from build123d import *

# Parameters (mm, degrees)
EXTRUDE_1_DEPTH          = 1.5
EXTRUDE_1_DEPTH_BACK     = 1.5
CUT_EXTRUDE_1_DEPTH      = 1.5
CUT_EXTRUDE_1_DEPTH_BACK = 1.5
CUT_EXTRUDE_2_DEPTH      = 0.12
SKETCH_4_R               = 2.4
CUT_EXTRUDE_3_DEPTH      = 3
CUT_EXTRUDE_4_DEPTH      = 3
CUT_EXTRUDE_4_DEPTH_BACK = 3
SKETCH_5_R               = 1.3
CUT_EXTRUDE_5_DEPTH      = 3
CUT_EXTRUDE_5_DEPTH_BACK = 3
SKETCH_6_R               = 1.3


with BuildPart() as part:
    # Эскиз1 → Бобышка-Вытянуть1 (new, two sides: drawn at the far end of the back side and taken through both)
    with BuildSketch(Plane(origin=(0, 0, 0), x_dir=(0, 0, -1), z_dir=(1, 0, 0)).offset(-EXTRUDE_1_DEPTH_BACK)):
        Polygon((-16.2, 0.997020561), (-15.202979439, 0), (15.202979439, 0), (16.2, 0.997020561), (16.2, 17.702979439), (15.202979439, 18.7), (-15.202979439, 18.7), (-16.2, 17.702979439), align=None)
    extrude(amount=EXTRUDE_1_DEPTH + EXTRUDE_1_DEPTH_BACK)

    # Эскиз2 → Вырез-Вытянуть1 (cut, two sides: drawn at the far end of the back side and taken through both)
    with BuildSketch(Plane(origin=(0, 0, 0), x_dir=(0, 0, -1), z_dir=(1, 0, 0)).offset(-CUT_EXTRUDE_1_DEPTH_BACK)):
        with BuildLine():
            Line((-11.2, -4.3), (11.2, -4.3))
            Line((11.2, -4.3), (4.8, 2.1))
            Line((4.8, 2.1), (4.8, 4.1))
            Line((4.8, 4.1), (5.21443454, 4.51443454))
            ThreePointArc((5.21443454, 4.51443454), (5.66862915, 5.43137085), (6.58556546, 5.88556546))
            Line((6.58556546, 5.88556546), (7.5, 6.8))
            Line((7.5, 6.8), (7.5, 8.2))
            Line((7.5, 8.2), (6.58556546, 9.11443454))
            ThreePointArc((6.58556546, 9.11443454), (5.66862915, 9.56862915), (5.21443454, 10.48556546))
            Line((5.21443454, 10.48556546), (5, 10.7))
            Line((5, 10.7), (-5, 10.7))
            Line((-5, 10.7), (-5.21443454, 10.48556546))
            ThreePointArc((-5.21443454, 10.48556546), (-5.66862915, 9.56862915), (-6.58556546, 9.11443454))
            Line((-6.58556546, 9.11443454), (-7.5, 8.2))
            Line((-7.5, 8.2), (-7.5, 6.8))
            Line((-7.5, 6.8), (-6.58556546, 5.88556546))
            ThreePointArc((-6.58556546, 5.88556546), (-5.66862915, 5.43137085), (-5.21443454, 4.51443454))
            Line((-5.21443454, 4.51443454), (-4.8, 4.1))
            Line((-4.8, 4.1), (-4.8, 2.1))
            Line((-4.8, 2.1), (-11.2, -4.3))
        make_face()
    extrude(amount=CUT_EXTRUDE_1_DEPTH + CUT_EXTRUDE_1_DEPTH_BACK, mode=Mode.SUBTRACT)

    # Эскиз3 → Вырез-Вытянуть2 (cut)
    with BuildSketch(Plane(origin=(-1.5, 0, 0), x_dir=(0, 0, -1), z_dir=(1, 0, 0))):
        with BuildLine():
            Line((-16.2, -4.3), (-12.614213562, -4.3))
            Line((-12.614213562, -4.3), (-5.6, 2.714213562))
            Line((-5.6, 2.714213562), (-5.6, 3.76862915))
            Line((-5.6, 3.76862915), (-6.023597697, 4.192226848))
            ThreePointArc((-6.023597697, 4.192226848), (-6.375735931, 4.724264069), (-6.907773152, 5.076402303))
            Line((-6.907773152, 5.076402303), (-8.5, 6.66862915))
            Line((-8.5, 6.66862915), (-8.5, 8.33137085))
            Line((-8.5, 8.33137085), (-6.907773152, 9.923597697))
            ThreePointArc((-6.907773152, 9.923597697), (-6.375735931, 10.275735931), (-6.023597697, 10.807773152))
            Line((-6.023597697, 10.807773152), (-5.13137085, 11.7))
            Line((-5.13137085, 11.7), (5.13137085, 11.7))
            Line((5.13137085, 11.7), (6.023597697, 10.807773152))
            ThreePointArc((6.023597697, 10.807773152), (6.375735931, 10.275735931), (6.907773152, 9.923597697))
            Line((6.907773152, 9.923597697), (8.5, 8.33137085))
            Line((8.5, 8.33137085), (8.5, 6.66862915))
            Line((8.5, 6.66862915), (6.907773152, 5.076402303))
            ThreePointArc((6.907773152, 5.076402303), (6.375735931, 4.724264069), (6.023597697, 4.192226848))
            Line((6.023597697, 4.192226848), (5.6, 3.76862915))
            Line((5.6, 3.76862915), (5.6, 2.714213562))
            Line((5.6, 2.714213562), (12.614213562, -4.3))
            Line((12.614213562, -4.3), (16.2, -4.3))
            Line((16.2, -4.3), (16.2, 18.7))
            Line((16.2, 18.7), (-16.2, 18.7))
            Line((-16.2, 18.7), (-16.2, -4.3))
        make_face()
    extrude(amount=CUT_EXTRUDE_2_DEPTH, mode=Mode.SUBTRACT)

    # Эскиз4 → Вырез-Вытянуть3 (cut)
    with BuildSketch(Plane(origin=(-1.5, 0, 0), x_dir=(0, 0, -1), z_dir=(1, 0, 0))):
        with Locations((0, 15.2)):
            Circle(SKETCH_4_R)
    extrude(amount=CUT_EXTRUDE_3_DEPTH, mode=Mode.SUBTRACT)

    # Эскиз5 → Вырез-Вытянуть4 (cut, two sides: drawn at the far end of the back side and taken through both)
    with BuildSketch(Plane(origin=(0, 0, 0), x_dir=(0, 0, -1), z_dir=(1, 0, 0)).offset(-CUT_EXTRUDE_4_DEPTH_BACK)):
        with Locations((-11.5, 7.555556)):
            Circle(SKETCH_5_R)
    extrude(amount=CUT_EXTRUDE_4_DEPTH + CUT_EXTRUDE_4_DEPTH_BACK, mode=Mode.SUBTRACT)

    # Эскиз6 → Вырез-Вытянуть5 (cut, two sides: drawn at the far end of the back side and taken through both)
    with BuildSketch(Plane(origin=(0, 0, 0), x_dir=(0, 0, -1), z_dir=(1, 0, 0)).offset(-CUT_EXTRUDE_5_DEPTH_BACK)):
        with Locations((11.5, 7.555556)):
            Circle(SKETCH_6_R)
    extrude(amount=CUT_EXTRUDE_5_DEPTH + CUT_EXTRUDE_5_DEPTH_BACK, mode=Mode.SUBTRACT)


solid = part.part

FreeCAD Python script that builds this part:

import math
import FreeCAD as App
import Part
import Sketcher


def add_polygon(sketch, points):
    """Adds a closed chain of lines whose ends are joined by coincident constraints."""
    first, n = sketch.GeometryCount, len(points)
    for a, b in zip(points, points[1:] + points[:1]):
        sketch.addGeometry(Part.LineSegment(App.Vector(*a, 0), App.Vector(*b, 0)), False)
    for i in range(n):
        sketch.addConstraint(Sketcher.Constraint("Coincident", first + i, 2, first + (i + 1) % n, 1))

doc = App.newDocument("Part")
body = doc.addObject("PartDesign::Body", "Body")

# Sketch on YZ plane
sketch1 = doc.addObject("Sketcher::SketchObject", "Sketch")
body.addObject(sketch1)
sketch1.AttachmentSupport = (doc.YZ_Plane, [""])
sketch1.MapMode = "FlatFace"
add_polygon(sketch1, [(1, 16.2), (0, 15.2), (0, -15.2), (1, -16.2), (17.7, -16.2), (18.7, -15.2), (18.7, 15.2), (17.7, 16.2)])  # lines 0-7
sketch1.addConstraint(Sketcher.Constraint("Vertical", 1))
sketch1.addConstraint(Sketcher.Constraint("Horizontal", 3))
sketch1.addConstraint(Sketcher.Constraint("Vertical", 5))
sketch1.addConstraint(Sketcher.Constraint("Horizontal", 7))
sketch1.addConstraint(Sketcher.Constraint("Symmetric", 0, 2, 1, 2, -1, 1))
sketch1.addConstraint(Sketcher.Constraint("Symmetric", 3, 2, 6, 2, -1))
sketch1.addConstraint(Sketcher.Constraint("Perpendicular", 0, 2))
sketch1.addConstraint(Sketcher.Constraint("Perpendicular", 2, 4))
sketch1.addConstraint(Sketcher.Constraint("Perpendicular", 4, 6))
sketch1.addConstraint(Sketcher.Constraint("Horizontal", 1, 2, 4, 2))
sketch1.addConstraint(Sketcher.Constraint("Horizontal", 0, 2, 5, 2))
sketch1.addConstraint(Sketcher.Constraint("DistanceY", 2, 2, -1, 1, 16.2))
sketch1.addConstraint(Sketcher.Constraint("DistanceX", -1, 1, 4, 2, 18.7))
sketch1.addConstraint(Sketcher.Constraint("Distance", 0, 1.41))
pad1 = doc.addObject("PartDesign::Pad", "Pad")
body.addObject(pad1)
pad1.Profile = sketch1
pad1.Type = "TwoLengths"
pad1.Length = 1.5
pad1.Length2 = 1.5

# Sketch on YZ plane
sketch2 = doc.addObject("Sketcher::SketchObject", "Sketch001")
body.addObject(sketch2)
sketch2.AttachmentSupport = (doc.YZ_Plane, [""])
sketch2.MapMode = "FlatFace"
sketch2.addGeometry(Part.LineSegment(App.Vector(-4.3, 11.2, 0), App.Vector(-4.3, -11.2, 0)), False)
sketch2.addGeometry(Part.LineSegment(App.Vector(-4.3, -11.2, 0), App.Vector(2.1, -4.8, 0)), False)
sketch2.addGeometry(Part.LineSegment(App.Vector(2.1, -4.8, 0), App.Vector(4.1, -4.8, 0)), False)
sketch2.addGeometry(Part.LineSegment(App.Vector(4.1, -4.8, 0), App.Vector(4.51, -5.21, 0)), False)
sketch2.addGeometry(Part.ArcOfCircle(Part.Circle(App.Vector(4.3, -6.8, 0), App.Vector(0, 0, 1), 1.6), math.radians(8), math.radians(82)), False)
sketch2.addGeometry(Part.LineSegment(App.Vector(5.89, -6.59, 0), App.Vector(6.8, -7.5, 0)), False)
sketch2.addGeometry(Part.LineSegment(App.Vector(6.8, -7.5, 0), App.Vector(8.2, -7.5, 0)), False)
sketch2.addGeometry(Part.LineSegment(App.Vector(8.2, -7.5, 0), App.Vector(9.11, -6.59, 0)), False)
sketch2.addGeometry(Part.ArcOfCircle(Part.Circle(App.Vector(10.7, -6.8, 0), App.Vector(0, 0, 1), 1.6), math.radians(98), math.radians(172)), False)
sketch2.addGeometry(Part.LineSegment(App.Vector(10.49, -5.21, 0), App.Vector(10.7, -5, 0)), False)
sketch2.addGeometry(Part.LineSegment(App.Vector(10.7, -5, 0), App.Vector(10.7, 5, 0)), False)
sketch2.addGeometry(Part.LineSegment(App.Vector(10.7, 5, 0), App.Vector(10.49, 5.21, 0)), False)
sketch2.addGeometry(Part.ArcOfCircle(Part.Circle(App.Vector(10.7, 6.8, 0), App.Vector(0, 0, 1), 1.6), math.radians(-172), math.radians(-98)), False)
sketch2.addGeometry(Part.LineSegment(App.Vector(9.11, 6.59, 0), App.Vector(8.2, 7.5, 0)), False)
sketch2.addGeometry(Part.LineSegment(App.Vector(8.2, 7.5, 0), App.Vector(6.8, 7.5, 0)), False)
sketch2.addGeometry(Part.LineSegment(App.Vector(6.8, 7.5, 0), App.Vector(5.89, 6.59, 0)), False)
sketch2.addGeometry(Part.ArcOfCircle(Part.Circle(App.Vector(4.3, 6.8, 0), App.Vector(0, 0, 1), 1.6), math.radians(-82), math.radians(-8)), False)
sketch2.addGeometry(Part.LineSegment(App.Vector(4.51, 5.21, 0), App.Vector(4.1, 4.8, 0)), False)
sketch2.addGeometry(Part.LineSegment(App.Vector(4.1, 4.8, 0), App.Vector(2.1, 4.8, 0)), False)
sketch2.addGeometry(Part.LineSegment(App.Vector(2.1, 4.8, 0), App.Vector(-4.3, 11.2, 0)), False)
sketch2.addConstraint(Sketcher.Constraint("Coincident", 0, 2, 1, 1))
sketch2.addConstraint(Sketcher.Constraint("Coincident", 1, 2, 2, 1))
sketch2.addConstraint(Sketcher.Constraint("Coincident", 2, 2, 3, 1))
sketch2.addConstraint(Sketcher.Constraint("Coincident", 3, 2, 4, 2))
sketch2.addConstraint(Sketcher.Constraint("Coincident", 4, 1, 5, 1))
sketch2.addConstraint(Sketcher.Constraint("Coincident", 5, 2, 6, 1))
sketch2.addConstraint(Sketcher.Constraint("Coincident", 6, 2, 7, 1))
sketch2.addConstraint(Sketcher.Constraint("Coincident", 7, 2, 8, 2))
sketch2.addConstraint(Sketcher.Constraint("Coincident", 8, 1, 9, 1))
sketch2.addConstraint(Sketcher.Constraint("Coincident", 9, 2, 10, 1))
sketch2.addConstraint(Sketcher.Constraint("Coincident", 10, 2, 11, 1))
sketch2.addConstraint(Sketcher.Constraint("Coincident", 11, 2, 12, 2))
sketch2.addConstraint(Sketcher.Constraint("Coincident", 12, 1, 13, 1))
sketch2.addConstraint(Sketcher.Constraint("Coincident", 13, 2, 14, 1))
sketch2.addConstraint(Sketcher.Constraint("Coincident", 14, 2, 15, 1))
sketch2.addConstraint(Sketcher.Constraint("Coincident", 15, 2, 16, 2))
sketch2.addConstraint(Sketcher.Constraint("Coincident", 16, 1, 17, 1))
sketch2.addConstraint(Sketcher.Constraint("Coincident", 17, 2, 18, 1))
sketch2.addConstraint(Sketcher.Constraint("Coincident", 18, 2, 19, 1))
sketch2.addConstraint(Sketcher.Constraint("Coincident", 19, 2, 0, 1))
sketch2.addConstraint(Sketcher.Constraint("Vertical", 0))
sketch2.addConstraint(Sketcher.Constraint("Horizontal", 2))
sketch2.addConstraint(Sketcher.Constraint("Horizontal", 6))
sketch2.addConstraint(Sketcher.Constraint("Vertical", 10))
sketch2.addConstraint(Sketcher.Constraint("Horizontal", 14))
sketch2.addConstraint(Sketcher.Constraint("Horizontal", 18))
sketch2.addConstraint(Sketcher.Constraint("Equal", 4, 8))
sketch2.addConstraint(Sketcher.Constraint("Equal", 8, 12))
sketch2.addConstraint(Sketcher.Constraint("Equal", 12, 16))
sketch2.addConstraint(Sketcher.Constraint("Symmetric", 8, 3, 12, 3, -1))
sketch2.addConstraint(Sketcher.Constraint("Symmetric", 4, 3, 16, 3, -1))
sketch2.addConstraint(Sketcher.Constraint("Symmetric", 6, 2, 13, 2, -1))
sketch2.addConstraint(Sketcher.Constraint("Symmetric", 2, 2, 17, 2, -1))
sketch2.addConstraint(Sketcher.Constraint("Perpendicular", 1, 3))
sketch2.addConstraint(Sketcher.Constraint("Parallel", 3, 5))
sketch2.addConstraint(Sketcher.Constraint("Perpendicular", 5, 7))
sketch2.addConstraint(Sketcher.Constraint("Parallel", 7, 9))
sketch2.addConstraint(Sketcher.Constraint("Perpendicular", 9, 11))
sketch2.addConstraint(Sketcher.Constraint("Parallel", 11, 13))
sketch2.addConstraint(Sketcher.Constraint("Perpendicular", 13, 15))
sketch2.addConstraint(Sketcher.Constraint("Parallel", 15, 17))
sketch2.addConstraint(Sketcher.Constraint("Perpendicular", 17, 19))
sketch2.addConstraint(Sketcher.Constraint("Horizontal", 4, 3, 8, 3))
sketch2.addConstraint(Sketcher.Constraint("Horizontal", 4, 1, 7, 2))
sketch2.addConstraint(Sketcher.Constraint("Horizontal", 3, 2, 8, 1))
sketch2.addConstraint(Sketcher.Constraint("Horizontal", 12, 1, 15, 2))
sketch2.addConstraint(Sketcher.Constraint("Horizontal", 11, 2, 16, 1))
sketch2.addConstraint(Sketcher.Constraint("Vertical", 12, 3, 9, 2))
sketch2.addConstraint(Sketcher.Constraint("Vertical", 8, 1, 11, 2))
sketch2.addConstraint(Sketcher.Constraint("Vertical", 1, 2, 18, 2))
sketch2.addConstraint(Sketcher.Constraint("Radius", 4, 1.6))
sketch2.addConstraint(Sketcher.Constraint("DistanceX", 2, 1, 2, 2, 2.0))
sketch2.addConstraint(Sketcher.Constraint("DistanceY", 10, 1, 10, 2, 10.0))
sketch2.addConstraint(Sketcher.Constraint("DistanceX", 6, 1, 6, 2, 1.4))
sketch2.addConstraint(Sketcher.Constraint("DistanceY", 0, 2, 0, 1, 22.4))
sketch2.addConstraint(Sketcher.Constraint("DistanceX", 0, 2, 8, 3, 15.0))
sketch2.addConstraint(Sketcher.Constraint("DistanceY", 0, 2, 16, 3, 18.0))
sketch2.addConstraint(Sketcher.Constraint("DistanceY", 4, 3, 1, 2, 2.0))
sketch2.addConstraint(Sketcher.Constraint("DistanceX", -1, 1, 4, 3, 4.3))
sketch2.addConstraint(Sketcher.Constraint("DistanceY", 5, 2, -1, 1, 7.5))
pocket1 = doc.addObject("PartDesign::Pocket", "Pocket")
body.addObject(pocket1)
pocket1.Profile = sketch2
pocket1.Type = "ThroughAll"
pocket1.Midplane = True

# Sketch on YZ plane
sketch3 = doc.addObject("Sketcher::SketchObject", "Sketch002")
body.addObject(sketch3)
sketch3.AttachmentSupport = (doc.YZ_Plane, [""])
sketch3.MapMode = "FlatFace"
sketch3.AttachmentOffset = App.Placement(App.Vector(0, 0, -1.5), App.Rotation())
sketch3.addGeometry(Part.LineSegment(App.Vector(-4.3, 16.2, 0), App.Vector(-4.3, 12.6, 0)), False)
sketch3.addGeometry(Part.LineSegment(App.Vector(-4.3, 12.6, 0), App.Vector(2.7, 5.6, 0)), False)
sketch3.addGeometry(Part.LineSegment(App.Vector(2.7, 5.6, 0), App.Vector(3.8, 5.6, 0)), False)
sketch3.addGeometry(Part.LineSegment(App.Vector(3.8, 5.6, 0), App.Vector(4.2, 6, 0)), False)
sketch3.addGeometry(Part.ArcOfCircle(Part.Circle(App.Vector(3.6, 7.5, 0), App.Vector(0, 0, 1), 1.6), math.radians(-68), math.radians(-22)), False)
sketch3.addGeometry(Part.LineSegment(App.Vector(5.1, 6.9, 0), App.Vector(6.7, 8.5, 0)), False)
sketch3.addGeometry(Part.LineSegment(App.Vector(6.7, 8.5, 0), App.Vector(8.3, 8.5, 0)), False)
sketch3.addGeometry(Part.LineSegment(App.Vector(8.3, 8.5, 0), App.Vector(9.9, 6.9, 0)), False)
sketch3.addGeometry(Part.ArcOfCircle(Part.Circle(App.Vector(11.4, 7.5, 0), App.Vector(0, 0, 1), 1.6), math.radians(-158), math.radians(-112)), False)
sketch3.addGeometry(Part.LineSegment(App.Vector(10.8, 6, 0), App.Vector(11.7, 5.1, 0)), False)
sketch3.addGeometry(Part.LineSegment(App.Vector(11.7, 5.1, 0), App.Vector(11.7, -5.1, 0)), False)
sketch3.addGeometry(Part.LineSegment(App.Vector(11.7, -5.1, 0), App.Vector(10.8, -6, 0)), False)
sketch3.addGeometry(Part.ArcOfCircle(Part.Circle(App.Vector(11.4, -7.5, 0), App.Vector(0, 0, 1), 1.6), math.radians(112), math.radians(158)), False)
sketch3.addGeometry(Part.LineSegment(App.Vector(9.9, -6.9, 0), App.Vector(8.3, -8.5, 0)), False)
sketch3.addGeometry(Part.LineSegment(App.Vector(8.3, -8.5, 0), App.Vector(6.7, -8.5, 0)), False)
sketch3.addGeometry(Part.LineSegment(App.Vector(6.7, -8.5, 0), App.Vector(5.1, -6.9, 0)), False)
sketch3.addGeometry(Part.ArcOfCircle(Part.Circle(App.Vector(3.6, -7.5, 0), App.Vector(0, 0, 1), 1.6), math.radians(22), math.radians(68)), False)
sketch3.addGeometry(Part.LineSegment(App.Vector(4.2, -6, 0), App.Vector(3.8, -5.6, 0)), False)
sketch3.addGeometry(Part.LineSegment(App.Vector(3.8, -5.6, 0), App.Vector(2.7, -5.6, 0)), False)
sketch3.addGeometry(Part.LineSegment(App.Vector(2.7, -5.6, 0), App.Vector(-4.3, -12.6, 0)), False)
sketch3.addGeometry(Part.LineSegment(App.Vector(-4.3, -12.6, 0), App.Vector(-4.3, -16.2, 0)), False)
sketch3.addGeometry(Part.LineSegment(App.Vector(-4.3, -16.2, 0), App.Vector(18.7, -16.2, 0)), False)
sketch3.addGeometry(Part.LineSegment(App.Vector(18.7, -16.2, 0), App.Vector(18.7, 16.2, 0)), False)
sketch3.addGeometry(Part.LineSegment(App.Vector(18.7, 16.2, 0), App.Vector(-4.3, 16.2, 0)), False)
sketch3.addConstraint(Sketcher.Constraint("Coincident", 0, 2, 1, 1))
sketch3.addConstraint(Sketcher.Constraint("Coincident", 1, 2, 2, 1))
sketch3.addConstraint(Sketcher.Constraint("Coincident", 2, 2, 3, 1))
sketch3.addConstraint(Sketcher.Constraint("Coincident", 3, 2, 4, 1))
sketch3.addConstraint(Sketcher.Constraint("Coincident", 4, 2, 5, 1))
sketch3.addConstraint(Sketcher.Constraint("Coincident", 5, 2, 6, 1))
sketch3.addConstraint(Sketcher.Constraint("Coincident", 6, 2, 7, 1))
sketch3.addConstraint(Sketcher.Constraint("Coincident", 7, 2, 8, 1))
sketch3.addConstraint(Sketcher.Constraint("Coincident", 8, 2, 9, 1))
sketch3.addConstraint(Sketcher.Constraint("Coincident", 9, 2, 10, 1))
sketch3.addConstraint(Sketcher.Constraint("Coincident", 10, 2, 11, 1))
sketch3.addConstraint(Sketcher.Constraint("Coincident", 11, 2, 12, 1))
sketch3.addConstraint(Sketcher.Constraint("Coincident", 12, 2, 13, 1))
sketch3.addConstraint(Sketcher.Constraint("Coincident", 13, 2, 14, 1))
sketch3.addConstraint(Sketcher.Constraint("Coincident", 14, 2, 15, 1))
sketch3.addConstraint(Sketcher.Constraint("Coincident", 15, 2, 16, 1))
sketch3.addConstraint(Sketcher.Constraint("Coincident", 16, 2, 17, 1))
sketch3.addConstraint(Sketcher.Constraint("Coincident", 17, 2, 18, 1))
sketch3.addConstraint(Sketcher.Constraint("Coincident", 18, 2, 19, 1))
sketch3.addConstraint(Sketcher.Constraint("Coincident", 19, 2, 20, 1))
sketch3.addConstraint(Sketcher.Constraint("Coincident", 20, 2, 21, 1))
sketch3.addConstraint(Sketcher.Constraint("Coincident", 21, 2, 22, 1))
sketch3.addConstraint(Sketcher.Constraint("Coincident", 22, 2, 23, 1))
sketch3.addConstraint(Sketcher.Constraint("Coincident", 23, 2, 0, 1))
sketch3.addConstraint(Sketcher.Constraint("Vertical", 0))
sketch3.addConstraint(Sketcher.Constraint("Horizontal", 2))
sketch3.addConstraint(Sketcher.Constraint("Horizontal", 6))
sketch3.addConstraint(Sketcher.Constraint("Vertical", 10))
sketch3.addConstraint(Sketcher.Constraint("Horizontal", 14))
sketch3.addConstraint(Sketcher.Constraint("Horizontal", 18))
sketch3.addConstraint(Sketcher.Constraint("Vertical", 20))
sketch3.addConstraint(Sketcher.Constraint("Horizontal", 21))
sketch3.addConstraint(Sketcher.Constraint("Vertical", 22))
sketch3.addConstraint(Sketcher.Constraint("Horizontal", 23))
sketch3.addConstraint(Sketcher.Constraint("Equal", 4, 8))
sketch3.addConstraint(Sketcher.Constraint("Equal", 8, 12))
sketch3.addConstraint(Sketcher.Constraint("Equal", 12, 16))
sketch3.addConstraint(Sketcher.Constraint("Symmetric", 8, 3, 12, 3, -1))
sketch3.addConstraint(Sketcher.Constraint("Symmetric", 4, 3, 16, 3, -1))
sketch3.addConstraint(Sketcher.Constraint("Symmetric", 6, 2, 13, 2, -1))
sketch3.addConstraint(Sketcher.Constraint("Symmetric", 2, 2, 17, 2, -1))
sketch3.addConstraint(Sketcher.Constraint("Symmetric", 0, 2, 19, 2, -1))
sketch3.addConstraint(Sketcher.Constraint("Perpendicular", 1, 3))
sketch3.addConstraint(Sketcher.Constraint("Parallel", 3, 5))
sketch3.addConstraint(Sketcher.Constraint("Perpendicular", 5, 7))
sketch3.addConstraint(Sketcher.Constraint("Parallel", 7, 9))
sketch3.addConstraint(Sketcher.Constraint("Perpendicular", 9, 11))
sketch3.addConstraint(Sketcher.Constraint("Parallel", 11, 13))
sketch3.addConstraint(Sketcher.Constraint("Perpendicular", 13, 15))
sketch3.addConstraint(Sketcher.Constraint("Parallel", 15, 17))
sketch3.addConstraint(Sketcher.Constraint("Perpendicular", 17, 19))
sketch3.addConstraint(Sketcher.Constraint("Horizontal", 4, 3, 8, 3))
sketch3.addConstraint(Sketcher.Constraint("Horizontal", 4, 2, 7, 2))
sketch3.addConstraint(Sketcher.Constraint("Horizontal", 3, 2, 8, 2))
sketch3.addConstraint(Sketcher.Constraint("Horizontal", 12, 2, 15, 2))
sketch3.addConstraint(Sketcher.Constraint("Horizontal", 11, 2, 16, 2))
sketch3.addConstraint(Sketcher.Constraint("Vertical", 8, 2, 11, 2))
sketch3.addConstraint(Sketcher.Constraint("Equal", 0, 20))
sketch3.addConstraint(Sketcher.Constraint("Radius", 4, 1.6))
sketch3.addConstraint(Sketcher.Constraint("DistanceX", 21, 1, 21, 2, 23.0))
sketch3.addConstraint(Sketcher.Constraint("DistanceY", 22, 1, 22, 2, 32.4))
sketch3.addConstraint(Sketcher.Constraint("DistanceX", 10, 2, 21, 2, 7.0))
sketch3.addConstraint(Sketcher.Constraint("DistanceX", 0, 2, -1, 1, 4.3))
sketch3.addConstraint(Sketcher.Constraint("DistanceY", -1, 1, 1, 2, 5.6))
sketch3.addConstraint(Sketcher.Constraint("DistanceY", -1, 1, 5, 2, 8.5))
sketch3.addConstraint(Sketcher.Constraint("DistanceX", 2, 2, 5, 2, 2.9))
sketch3.addConstraint(Sketcher.Constraint("Distance", 9, 1.261799))
sketch3.addConstraint(Sketcher.Constraint("DistanceX", 6, 1, 6, 2, 1.662742))
sketch3.addConstraint(Sketcher.Constraint("DistanceY", 10, 2, 10, 1, 10.262742))
sketch3.addConstraint(Sketcher.Constraint("Distance", 5, 2.251749))
sketch3.addConstraint(Sketcher.Constraint("DistanceX", 2, 1, 2, 2, 1.054416))
pocket2 = doc.addObject("PartDesign::Pocket", "Pocket001")
body.addObject(pocket2)
pocket2.Profile = sketch3
pocket2.Length = 0.12
pocket2.Reversed = True

# Sketch on YZ plane
sketch4 = doc.addObject("Sketcher::SketchObject", "Sketch003")
body.addObject(sketch4)
sketch4.AttachmentSupport = (doc.YZ_Plane, [""])
sketch4.MapMode = "FlatFace"
sketch4.AttachmentOffset = App.Placement(App.Vector(0, 0, -1.5), App.Rotation())
sketch4.addGeometry(Part.Circle(App.Vector(15.2, 0, 0), App.Vector(0, 0, 1), 2.4), False)
sketch4.addConstraint(Sketcher.Constraint("PointOnObject", 0, 3, -1))
sketch4.addConstraint(Sketcher.Constraint("Diameter", 0, 4.8))
sketch4.addConstraint(Sketcher.Constraint("DistanceX", -1, 1, 0, 3, 15.2))
pocket3 = doc.addObject("PartDesign::Pocket", "Pocket002")
body.addObject(pocket3)
pocket3.Profile = sketch4
pocket3.Length = 3
pocket3.Reversed = True

# Sketch on YZ plane
sketch5 = doc.addObject("Sketcher::SketchObject", "Sketch004")
body.addObject(sketch5)
sketch5.AttachmentSupport = (doc.YZ_Plane, [""])
sketch5.MapMode = "FlatFace"
sketch5.addGeometry(Part.Circle(App.Vector(7.6, 11.5, 0), App.Vector(0, 0, 1), 1.3), False)
sketch5.addConstraint(Sketcher.Constraint("Diameter", 0, 2.6))
sketch5.addConstraint(Sketcher.Constraint("DistanceY", -1, 1, 0, 3, 11.5))
sketch5.addConstraint(Sketcher.Constraint("DistanceX", -1, 1, 0, 3, 7.555556))
pocket4 = doc.addObject("PartDesign::Pocket", "Pocket003")
body.addObject(pocket4)
pocket4.Profile = sketch5
pocket4.Type = "ThroughAll"
pocket4.Midplane = True

# Sketch on YZ plane
sketch6 = doc.addObject("Sketcher::SketchObject", "Sketch005")
body.addObject(sketch6)
sketch6.AttachmentSupport = (doc.YZ_Plane, [""])
sketch6.MapMode = "FlatFace"
sketch6.addGeometry(Part.Circle(App.Vector(7.6, -11.5, 0), App.Vector(0, 0, 1), 1.3), False)
sketch6.addConstraint(Sketcher.Constraint("Diameter", 0, 2.6))
sketch6.addConstraint(Sketcher.Constraint("DistanceY", 0, 3, -1, 1, 11.5))
sketch6.addConstraint(Sketcher.Constraint("DistanceX", -1, 1, 0, 3, 7.555556))
pocket5 = doc.addObject("PartDesign::Pocket", "Pocket004")
body.addObject(pocket5)
pocket5.Profile = sketch6
pocket5.Type = "ThroughAll"
pocket5.Midplane = True

doc.recompute()
